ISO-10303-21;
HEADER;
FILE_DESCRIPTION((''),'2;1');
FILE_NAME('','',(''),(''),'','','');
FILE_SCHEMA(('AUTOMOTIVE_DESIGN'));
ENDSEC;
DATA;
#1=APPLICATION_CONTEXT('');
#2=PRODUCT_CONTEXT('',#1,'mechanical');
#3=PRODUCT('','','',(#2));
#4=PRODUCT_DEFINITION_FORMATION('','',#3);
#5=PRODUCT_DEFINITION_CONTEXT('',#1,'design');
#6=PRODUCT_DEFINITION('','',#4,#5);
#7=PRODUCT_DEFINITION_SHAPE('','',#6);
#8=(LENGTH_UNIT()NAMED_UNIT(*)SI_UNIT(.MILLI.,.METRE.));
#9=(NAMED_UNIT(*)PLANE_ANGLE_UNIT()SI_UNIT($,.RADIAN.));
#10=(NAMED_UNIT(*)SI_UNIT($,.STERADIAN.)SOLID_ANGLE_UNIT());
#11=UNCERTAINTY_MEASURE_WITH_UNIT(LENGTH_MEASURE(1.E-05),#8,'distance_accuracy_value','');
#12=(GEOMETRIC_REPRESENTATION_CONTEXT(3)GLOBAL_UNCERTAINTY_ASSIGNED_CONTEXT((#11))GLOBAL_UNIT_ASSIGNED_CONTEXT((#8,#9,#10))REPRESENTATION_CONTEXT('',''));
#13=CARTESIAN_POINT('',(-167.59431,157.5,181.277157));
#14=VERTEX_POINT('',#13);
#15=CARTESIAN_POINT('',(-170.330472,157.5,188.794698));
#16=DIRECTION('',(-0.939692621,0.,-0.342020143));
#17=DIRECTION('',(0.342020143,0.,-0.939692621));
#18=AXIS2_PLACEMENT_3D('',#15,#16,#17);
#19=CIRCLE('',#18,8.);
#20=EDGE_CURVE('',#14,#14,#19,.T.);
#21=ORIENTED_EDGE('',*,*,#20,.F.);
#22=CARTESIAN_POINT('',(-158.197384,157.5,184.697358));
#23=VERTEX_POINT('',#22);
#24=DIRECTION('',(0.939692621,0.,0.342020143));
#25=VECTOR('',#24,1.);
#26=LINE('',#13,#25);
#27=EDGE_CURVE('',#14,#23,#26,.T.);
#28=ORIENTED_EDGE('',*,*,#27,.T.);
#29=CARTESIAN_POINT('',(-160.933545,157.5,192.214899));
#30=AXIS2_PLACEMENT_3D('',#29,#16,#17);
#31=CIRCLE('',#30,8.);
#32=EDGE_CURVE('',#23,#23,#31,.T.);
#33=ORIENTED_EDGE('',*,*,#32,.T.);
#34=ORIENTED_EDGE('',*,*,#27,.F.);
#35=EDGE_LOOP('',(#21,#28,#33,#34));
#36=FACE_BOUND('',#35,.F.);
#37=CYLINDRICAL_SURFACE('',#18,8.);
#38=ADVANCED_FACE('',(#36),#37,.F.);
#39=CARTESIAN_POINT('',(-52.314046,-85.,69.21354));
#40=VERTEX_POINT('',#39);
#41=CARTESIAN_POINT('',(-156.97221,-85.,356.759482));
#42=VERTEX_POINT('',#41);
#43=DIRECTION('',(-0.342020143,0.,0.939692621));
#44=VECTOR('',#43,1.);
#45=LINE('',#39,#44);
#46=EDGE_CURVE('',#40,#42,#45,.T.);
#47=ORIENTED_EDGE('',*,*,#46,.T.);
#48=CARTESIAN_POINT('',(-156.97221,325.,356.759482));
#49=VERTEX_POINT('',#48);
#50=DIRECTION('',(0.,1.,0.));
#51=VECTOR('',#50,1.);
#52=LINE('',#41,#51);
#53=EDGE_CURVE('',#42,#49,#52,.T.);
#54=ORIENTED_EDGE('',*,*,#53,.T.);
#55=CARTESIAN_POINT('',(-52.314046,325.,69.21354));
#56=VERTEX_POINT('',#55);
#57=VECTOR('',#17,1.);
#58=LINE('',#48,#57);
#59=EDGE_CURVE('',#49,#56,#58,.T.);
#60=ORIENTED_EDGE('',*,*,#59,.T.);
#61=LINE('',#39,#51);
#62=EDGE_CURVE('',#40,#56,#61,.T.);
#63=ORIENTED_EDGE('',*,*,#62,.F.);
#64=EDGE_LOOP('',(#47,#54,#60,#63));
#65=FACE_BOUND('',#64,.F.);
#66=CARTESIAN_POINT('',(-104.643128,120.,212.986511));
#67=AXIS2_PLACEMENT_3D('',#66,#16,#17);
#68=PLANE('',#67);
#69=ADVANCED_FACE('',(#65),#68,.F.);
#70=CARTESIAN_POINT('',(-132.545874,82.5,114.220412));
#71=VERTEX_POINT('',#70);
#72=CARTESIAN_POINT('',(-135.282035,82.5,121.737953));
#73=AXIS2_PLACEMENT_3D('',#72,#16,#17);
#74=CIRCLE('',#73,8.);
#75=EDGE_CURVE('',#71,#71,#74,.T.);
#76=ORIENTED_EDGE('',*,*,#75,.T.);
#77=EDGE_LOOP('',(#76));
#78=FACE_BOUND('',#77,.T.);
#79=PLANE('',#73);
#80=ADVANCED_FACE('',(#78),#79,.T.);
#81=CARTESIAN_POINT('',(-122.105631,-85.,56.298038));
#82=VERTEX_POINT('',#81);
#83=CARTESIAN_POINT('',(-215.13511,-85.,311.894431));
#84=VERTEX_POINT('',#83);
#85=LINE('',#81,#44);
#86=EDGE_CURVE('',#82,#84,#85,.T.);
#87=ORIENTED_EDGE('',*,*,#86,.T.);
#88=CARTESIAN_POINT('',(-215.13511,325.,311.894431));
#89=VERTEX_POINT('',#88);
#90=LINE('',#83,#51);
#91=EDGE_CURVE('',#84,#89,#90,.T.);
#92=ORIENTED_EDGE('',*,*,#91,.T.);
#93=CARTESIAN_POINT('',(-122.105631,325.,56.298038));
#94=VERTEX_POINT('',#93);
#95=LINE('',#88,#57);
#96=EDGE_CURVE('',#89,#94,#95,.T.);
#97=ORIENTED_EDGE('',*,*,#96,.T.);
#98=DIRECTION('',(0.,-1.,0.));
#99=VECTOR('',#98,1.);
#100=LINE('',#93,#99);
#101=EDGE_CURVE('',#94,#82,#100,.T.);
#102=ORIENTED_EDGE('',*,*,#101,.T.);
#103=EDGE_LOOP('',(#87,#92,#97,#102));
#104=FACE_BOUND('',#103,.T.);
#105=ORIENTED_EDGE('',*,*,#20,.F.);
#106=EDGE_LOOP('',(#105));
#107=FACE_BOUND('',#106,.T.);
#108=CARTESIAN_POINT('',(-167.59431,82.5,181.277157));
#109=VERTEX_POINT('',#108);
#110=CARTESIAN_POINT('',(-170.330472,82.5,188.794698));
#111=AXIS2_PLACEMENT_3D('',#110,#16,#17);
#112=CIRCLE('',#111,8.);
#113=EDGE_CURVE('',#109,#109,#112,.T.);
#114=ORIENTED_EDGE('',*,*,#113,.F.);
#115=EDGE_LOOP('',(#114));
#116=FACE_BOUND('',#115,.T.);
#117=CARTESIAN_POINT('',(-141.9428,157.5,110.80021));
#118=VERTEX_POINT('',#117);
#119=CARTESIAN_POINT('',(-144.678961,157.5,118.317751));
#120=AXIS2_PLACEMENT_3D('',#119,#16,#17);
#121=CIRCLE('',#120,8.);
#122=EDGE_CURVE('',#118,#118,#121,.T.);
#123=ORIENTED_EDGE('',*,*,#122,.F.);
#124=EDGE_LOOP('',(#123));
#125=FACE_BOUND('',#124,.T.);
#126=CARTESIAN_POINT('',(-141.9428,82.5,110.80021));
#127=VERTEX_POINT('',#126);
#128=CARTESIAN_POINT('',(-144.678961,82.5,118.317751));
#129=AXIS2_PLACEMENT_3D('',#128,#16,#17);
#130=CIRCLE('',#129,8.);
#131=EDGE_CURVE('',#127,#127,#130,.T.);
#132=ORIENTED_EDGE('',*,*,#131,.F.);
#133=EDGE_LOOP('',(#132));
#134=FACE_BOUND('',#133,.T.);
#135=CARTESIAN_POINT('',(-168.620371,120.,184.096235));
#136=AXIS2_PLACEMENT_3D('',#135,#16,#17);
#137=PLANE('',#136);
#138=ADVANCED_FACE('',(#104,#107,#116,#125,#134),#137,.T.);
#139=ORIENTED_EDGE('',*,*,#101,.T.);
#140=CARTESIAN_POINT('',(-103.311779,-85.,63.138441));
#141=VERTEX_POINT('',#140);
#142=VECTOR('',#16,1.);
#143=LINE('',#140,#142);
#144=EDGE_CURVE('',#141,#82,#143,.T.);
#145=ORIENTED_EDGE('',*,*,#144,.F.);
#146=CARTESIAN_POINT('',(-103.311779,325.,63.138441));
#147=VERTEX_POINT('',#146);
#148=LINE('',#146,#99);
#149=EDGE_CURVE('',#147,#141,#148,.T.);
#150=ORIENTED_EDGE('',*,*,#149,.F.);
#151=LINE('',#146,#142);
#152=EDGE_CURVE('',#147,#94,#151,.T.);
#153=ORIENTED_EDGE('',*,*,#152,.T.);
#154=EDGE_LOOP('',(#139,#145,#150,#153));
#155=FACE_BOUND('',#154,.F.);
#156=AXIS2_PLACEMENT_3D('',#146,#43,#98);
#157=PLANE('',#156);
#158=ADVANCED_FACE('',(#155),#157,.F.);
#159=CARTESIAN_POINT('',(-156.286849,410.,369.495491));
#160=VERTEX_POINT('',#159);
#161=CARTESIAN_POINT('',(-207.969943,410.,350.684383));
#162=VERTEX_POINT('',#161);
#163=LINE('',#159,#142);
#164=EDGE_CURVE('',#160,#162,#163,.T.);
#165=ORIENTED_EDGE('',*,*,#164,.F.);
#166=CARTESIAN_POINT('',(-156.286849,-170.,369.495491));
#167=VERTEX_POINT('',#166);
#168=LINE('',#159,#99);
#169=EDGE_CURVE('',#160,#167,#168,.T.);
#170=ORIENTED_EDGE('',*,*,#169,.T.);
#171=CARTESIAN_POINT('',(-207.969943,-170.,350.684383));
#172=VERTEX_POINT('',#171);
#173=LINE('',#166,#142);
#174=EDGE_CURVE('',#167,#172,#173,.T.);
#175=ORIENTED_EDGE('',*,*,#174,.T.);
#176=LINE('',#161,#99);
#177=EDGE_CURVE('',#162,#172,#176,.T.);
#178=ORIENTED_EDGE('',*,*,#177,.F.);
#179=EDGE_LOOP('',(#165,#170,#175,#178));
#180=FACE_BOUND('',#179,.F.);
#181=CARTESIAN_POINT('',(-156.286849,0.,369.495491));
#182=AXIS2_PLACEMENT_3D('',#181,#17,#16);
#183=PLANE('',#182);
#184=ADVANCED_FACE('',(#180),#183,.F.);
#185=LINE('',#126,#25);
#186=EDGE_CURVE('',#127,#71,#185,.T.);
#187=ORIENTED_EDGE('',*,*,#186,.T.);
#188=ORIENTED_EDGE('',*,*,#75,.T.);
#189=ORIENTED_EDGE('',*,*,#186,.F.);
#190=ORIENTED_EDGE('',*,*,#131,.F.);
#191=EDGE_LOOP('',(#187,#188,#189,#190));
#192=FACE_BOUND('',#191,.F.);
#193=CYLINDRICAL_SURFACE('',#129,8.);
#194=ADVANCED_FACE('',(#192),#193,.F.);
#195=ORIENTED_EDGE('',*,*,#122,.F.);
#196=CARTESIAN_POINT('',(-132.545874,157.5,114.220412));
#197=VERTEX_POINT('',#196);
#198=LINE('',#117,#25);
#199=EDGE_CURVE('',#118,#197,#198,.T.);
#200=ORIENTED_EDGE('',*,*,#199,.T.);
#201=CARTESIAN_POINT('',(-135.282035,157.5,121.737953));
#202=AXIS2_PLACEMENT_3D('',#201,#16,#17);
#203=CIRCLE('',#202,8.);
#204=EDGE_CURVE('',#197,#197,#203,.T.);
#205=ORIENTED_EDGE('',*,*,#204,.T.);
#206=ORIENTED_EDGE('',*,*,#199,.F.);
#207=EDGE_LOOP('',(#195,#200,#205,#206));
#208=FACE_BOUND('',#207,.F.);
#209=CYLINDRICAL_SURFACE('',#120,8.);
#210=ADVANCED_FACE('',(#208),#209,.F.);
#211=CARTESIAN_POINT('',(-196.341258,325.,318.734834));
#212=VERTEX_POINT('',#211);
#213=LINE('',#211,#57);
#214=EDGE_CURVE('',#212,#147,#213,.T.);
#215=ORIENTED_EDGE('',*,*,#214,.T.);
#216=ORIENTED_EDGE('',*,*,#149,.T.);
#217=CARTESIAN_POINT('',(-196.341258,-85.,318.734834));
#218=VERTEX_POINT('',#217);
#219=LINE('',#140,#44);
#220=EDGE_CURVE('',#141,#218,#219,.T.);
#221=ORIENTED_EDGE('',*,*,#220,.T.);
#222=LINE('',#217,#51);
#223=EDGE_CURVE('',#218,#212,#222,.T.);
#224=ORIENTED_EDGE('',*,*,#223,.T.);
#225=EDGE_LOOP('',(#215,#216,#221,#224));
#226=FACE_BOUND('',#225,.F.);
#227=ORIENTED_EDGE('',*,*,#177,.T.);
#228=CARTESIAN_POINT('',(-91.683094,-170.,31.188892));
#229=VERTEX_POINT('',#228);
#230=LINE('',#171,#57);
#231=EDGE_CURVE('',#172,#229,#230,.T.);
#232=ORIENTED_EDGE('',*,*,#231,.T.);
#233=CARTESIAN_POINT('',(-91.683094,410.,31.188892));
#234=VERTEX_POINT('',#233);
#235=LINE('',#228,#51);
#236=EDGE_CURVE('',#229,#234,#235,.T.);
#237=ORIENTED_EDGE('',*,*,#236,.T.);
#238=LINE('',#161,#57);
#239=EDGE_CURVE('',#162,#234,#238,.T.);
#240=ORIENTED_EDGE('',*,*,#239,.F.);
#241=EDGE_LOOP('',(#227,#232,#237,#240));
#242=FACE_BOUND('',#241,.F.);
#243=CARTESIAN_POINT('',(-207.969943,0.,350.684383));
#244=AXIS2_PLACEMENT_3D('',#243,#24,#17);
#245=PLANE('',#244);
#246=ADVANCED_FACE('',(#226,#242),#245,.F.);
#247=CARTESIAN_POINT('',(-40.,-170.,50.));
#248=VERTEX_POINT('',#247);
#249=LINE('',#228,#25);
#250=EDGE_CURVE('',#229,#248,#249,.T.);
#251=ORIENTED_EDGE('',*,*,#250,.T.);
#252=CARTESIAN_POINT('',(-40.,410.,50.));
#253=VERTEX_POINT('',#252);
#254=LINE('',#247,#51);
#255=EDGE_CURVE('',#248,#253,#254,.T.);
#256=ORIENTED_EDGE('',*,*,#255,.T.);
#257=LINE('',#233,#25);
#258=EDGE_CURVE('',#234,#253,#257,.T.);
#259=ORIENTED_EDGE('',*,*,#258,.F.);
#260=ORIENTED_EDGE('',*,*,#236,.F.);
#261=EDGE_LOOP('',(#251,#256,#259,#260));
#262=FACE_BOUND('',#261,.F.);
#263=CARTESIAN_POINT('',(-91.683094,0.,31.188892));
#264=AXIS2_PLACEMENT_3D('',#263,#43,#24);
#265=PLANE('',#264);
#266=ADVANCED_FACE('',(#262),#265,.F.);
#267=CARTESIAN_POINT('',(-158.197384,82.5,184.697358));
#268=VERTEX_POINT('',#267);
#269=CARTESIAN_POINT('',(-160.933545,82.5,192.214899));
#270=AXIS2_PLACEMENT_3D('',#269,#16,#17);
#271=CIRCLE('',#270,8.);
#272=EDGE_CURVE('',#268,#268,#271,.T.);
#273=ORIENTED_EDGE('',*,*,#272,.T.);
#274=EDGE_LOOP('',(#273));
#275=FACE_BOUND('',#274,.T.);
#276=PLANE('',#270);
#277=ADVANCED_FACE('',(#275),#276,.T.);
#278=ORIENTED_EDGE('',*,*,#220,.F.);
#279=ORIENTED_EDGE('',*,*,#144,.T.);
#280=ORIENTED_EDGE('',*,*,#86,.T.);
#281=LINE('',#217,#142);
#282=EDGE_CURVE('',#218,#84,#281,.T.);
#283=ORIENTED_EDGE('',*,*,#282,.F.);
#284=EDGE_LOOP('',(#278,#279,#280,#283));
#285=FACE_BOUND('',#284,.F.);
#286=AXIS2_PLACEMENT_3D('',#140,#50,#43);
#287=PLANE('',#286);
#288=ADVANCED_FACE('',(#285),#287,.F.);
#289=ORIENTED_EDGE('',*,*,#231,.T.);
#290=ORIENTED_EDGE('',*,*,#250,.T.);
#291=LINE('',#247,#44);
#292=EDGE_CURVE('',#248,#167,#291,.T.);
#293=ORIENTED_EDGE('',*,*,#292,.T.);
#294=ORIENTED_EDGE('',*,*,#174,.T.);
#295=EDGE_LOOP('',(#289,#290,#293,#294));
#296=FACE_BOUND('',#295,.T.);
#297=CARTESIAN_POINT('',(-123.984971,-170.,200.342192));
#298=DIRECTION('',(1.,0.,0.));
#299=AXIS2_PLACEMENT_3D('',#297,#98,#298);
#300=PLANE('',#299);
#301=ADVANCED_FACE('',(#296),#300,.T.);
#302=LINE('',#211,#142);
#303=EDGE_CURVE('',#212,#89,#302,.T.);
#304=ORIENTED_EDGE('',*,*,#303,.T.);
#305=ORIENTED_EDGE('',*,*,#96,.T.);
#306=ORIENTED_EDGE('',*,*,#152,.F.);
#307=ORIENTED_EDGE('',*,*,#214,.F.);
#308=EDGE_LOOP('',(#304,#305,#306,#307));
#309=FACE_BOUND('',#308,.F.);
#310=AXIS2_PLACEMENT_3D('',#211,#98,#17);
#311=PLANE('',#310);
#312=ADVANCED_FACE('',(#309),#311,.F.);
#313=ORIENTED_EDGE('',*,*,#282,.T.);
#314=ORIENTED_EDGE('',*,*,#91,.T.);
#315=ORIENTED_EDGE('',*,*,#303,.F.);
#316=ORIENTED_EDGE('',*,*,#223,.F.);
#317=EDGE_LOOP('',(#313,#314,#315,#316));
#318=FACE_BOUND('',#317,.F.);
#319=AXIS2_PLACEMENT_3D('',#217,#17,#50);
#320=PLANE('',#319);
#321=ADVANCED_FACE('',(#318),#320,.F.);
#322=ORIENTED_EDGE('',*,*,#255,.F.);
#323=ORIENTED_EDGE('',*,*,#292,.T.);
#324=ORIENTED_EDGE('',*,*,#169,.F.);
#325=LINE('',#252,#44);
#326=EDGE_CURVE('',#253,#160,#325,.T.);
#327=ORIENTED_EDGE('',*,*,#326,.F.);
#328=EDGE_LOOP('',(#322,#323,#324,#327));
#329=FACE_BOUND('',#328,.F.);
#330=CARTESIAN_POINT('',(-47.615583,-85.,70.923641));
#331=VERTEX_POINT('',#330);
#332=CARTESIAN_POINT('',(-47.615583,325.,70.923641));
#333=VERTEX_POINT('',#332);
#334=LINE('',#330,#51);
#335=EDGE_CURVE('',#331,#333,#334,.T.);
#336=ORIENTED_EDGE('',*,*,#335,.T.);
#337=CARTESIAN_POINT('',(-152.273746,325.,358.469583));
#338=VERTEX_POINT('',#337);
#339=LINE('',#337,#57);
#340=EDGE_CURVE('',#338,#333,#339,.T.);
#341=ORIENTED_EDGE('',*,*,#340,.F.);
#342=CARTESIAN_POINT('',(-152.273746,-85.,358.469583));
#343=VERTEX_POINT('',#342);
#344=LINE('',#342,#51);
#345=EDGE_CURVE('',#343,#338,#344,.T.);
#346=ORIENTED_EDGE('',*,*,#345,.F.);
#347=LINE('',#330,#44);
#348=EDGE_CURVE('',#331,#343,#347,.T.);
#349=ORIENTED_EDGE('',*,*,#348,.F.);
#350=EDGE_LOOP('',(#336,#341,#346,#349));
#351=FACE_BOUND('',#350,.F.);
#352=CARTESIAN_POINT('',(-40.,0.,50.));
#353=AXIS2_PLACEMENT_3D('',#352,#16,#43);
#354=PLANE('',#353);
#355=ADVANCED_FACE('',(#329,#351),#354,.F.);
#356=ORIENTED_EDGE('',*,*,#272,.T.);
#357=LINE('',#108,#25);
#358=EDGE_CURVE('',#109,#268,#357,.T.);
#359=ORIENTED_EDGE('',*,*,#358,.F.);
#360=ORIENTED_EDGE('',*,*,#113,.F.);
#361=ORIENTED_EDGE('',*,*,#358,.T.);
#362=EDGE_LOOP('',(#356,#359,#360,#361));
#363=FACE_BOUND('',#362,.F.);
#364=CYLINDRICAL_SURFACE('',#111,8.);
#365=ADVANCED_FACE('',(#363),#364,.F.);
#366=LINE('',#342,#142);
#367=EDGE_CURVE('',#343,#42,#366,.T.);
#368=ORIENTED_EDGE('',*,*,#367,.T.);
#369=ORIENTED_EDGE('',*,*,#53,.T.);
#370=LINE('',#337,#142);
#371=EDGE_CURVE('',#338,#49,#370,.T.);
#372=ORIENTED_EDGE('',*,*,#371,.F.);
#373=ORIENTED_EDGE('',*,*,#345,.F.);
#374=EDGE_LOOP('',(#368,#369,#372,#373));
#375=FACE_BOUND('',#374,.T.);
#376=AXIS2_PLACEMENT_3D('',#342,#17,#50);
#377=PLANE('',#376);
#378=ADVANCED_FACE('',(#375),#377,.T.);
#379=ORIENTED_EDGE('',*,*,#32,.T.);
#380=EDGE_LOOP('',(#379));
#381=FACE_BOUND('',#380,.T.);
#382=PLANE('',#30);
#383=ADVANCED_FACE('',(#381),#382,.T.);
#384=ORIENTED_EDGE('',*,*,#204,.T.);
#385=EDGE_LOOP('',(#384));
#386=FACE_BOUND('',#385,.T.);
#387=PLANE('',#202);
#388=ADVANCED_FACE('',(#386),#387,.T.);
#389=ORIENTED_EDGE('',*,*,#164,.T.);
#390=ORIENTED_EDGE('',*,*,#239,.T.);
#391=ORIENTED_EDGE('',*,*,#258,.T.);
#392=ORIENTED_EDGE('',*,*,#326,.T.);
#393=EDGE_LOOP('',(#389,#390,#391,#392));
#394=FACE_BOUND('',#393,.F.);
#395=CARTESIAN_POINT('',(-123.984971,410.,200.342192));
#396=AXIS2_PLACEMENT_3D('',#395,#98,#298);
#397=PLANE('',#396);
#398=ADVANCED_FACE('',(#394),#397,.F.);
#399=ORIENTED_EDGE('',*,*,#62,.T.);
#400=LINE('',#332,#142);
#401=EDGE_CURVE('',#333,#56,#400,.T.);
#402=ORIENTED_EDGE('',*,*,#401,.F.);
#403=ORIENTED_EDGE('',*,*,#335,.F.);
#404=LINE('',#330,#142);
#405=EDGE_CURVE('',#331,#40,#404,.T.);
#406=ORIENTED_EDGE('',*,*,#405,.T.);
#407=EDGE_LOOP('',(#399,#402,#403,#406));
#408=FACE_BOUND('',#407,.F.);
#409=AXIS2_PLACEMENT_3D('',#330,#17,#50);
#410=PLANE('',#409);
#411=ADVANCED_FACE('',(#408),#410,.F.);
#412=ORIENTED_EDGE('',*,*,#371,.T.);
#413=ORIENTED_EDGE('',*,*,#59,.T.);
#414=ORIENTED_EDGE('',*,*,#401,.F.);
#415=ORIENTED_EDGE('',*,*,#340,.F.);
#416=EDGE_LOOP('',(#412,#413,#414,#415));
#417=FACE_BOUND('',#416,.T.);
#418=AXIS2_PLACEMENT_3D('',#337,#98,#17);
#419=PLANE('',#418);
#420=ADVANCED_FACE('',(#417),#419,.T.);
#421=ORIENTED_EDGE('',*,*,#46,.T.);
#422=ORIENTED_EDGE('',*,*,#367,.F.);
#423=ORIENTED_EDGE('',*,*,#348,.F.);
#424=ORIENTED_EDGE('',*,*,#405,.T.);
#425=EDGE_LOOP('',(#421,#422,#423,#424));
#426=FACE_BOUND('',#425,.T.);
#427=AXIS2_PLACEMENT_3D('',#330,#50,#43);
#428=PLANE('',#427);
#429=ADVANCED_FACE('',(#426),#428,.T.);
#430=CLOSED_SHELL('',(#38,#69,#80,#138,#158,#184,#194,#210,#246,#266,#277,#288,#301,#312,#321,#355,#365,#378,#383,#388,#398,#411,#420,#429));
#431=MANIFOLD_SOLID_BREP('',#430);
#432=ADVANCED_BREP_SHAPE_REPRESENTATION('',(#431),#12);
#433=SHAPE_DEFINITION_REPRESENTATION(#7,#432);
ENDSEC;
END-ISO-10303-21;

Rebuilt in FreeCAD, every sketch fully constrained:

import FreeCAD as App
import Part
import Sketcher

V = App.Vector
Q = App.Units.Quantity

doc = App.newDocument("Part")
params = doc.addObject("Spreadsheet::Sheet", "Params")
for row, (alias, value) in enumerate([
    ("sketch1_length", "340 mm"),
    ("sketch1_length2", "55 mm"),
    ("pad1_length", "410 mm"),
    ("pad1_length2", "170 mm"),
    ("sketch2_width", "306 mm"),
    ("sketch2_height", "410 mm"),
    ("pocket1_length", "5 mm"),
    ("sketch3_width", "272 mm"),
    ("sketch3_height", "410 mm"),
    ("pad2_length", "20 mm"),
    ("sketch4_diameter", "16 mm"),
    ("pocket2_length", "10 mm"),
], start=1):
    params.set(f"A{row}", alias)
    params.set(f"B{row}", "=" + value)
    params.setAlias(f"B{row}", alias)

body = doc.addObject("PartDesign::Body", "Body")

# Sketch on XZ plane
sketch1 = doc.addObject("Sketcher::SketchObject", "Sketch")
body.addObject(sketch1)
sketch1.AttachmentSupport = (doc.XZ_Plane, [""])
sketch1.MapMode = "FlatFace"
sketch1.addGeometry([
    Part.LineSegment(V(-156, 369, 0), V(-40, 50, 0)),
    Part.LineSegment(V(-40, 50, 0), V(-92, 31, 0)),
    Part.LineSegment(V(-92, 31, 0), V(-208, 351, 0)),
    Part.LineSegment(V(-208, 351, 0), V(-156, 369, 0)),
], False)
sketch1.addConstraint([
    Sketcher.Constraint("Coincident", 0, 2, 1, 1),
    Sketcher.Constraint("Coincident", 1, 2, 2, 1),
    Sketcher.Constraint("Coincident", 2, 2, 3, 1),
    Sketcher.Constraint("Coincident", 3, 2, 0, 1),
    Sketcher.Constraint("Perpendicular", 0, 1),
    Sketcher.Constraint("Perpendicular", 1, 2),
    Sketcher.Constraint("Perpendicular", 2, 3),
    Sketcher.Constraint("Angle", 0, Q("-70 deg")),
    Sketcher.Constraint("Distance", 0, 340.0),
    Sketcher.Constraint("Distance", 1, 55.0),
    Sketcher.Constraint("DistanceX", 0, 2, -1, 1, 40.0),
    Sketcher.Constraint("DistanceY", -1, 1, 0, 2, 50.0),
])
sketch1.setExpression("Constraints[8]", "Params.sketch1_length")
sketch1.setExpression("Constraints[9]", "Params.sketch1_length2")
pad1 = doc.addObject("PartDesign::Pad", "Pad")
body.addObject(pad1)
pad1.Profile = sketch1
pad1.Type = "TwoLengths"
pad1.setExpression("Length", "Params.pad1_length")
pad1.setExpression("Length2", "Params.pad1_length2")
pad1.Reversed = True

# Sketch on an angled plane
sketch2 = doc.addObject("Sketcher::SketchObject", "Sketch001")
body.addObject(sketch2)
sketch2.Placement = App.Placement(V(-19.251199, 0, -7.006863), App.Rotation(V(-0.342020143, 0, 0.939692621), V(0, -1, 0), V(0.939692621, 0, 0.342020143), "ZXY"))
sketch2.addGeometry([
    Part.LineSegment(V(389, 85, 0), V(83, 85, 0)),
    Part.LineSegment(V(83, 85, 0), V(83, -325, 0)),
    Part.LineSegment(V(83, -325, 0), V(389, -325, 0)),
    Part.LineSegment(V(389, -325, 0), V(389, 85, 0)),
], False)
sketch2.addConstraint([
    Sketcher.Constraint("Coincident", 0, 2, 1, 1),
    Sketcher.Constraint("Coincident", 1, 2, 2, 1),
    Sketcher.Constraint("Coincident", 2, 2, 3, 1),
    Sketcher.Constraint("Coincident", 3, 2, 0, 1),
    Sketcher.Constraint("Horizontal", 0),
    Sketcher.Constraint("Vertical", 1),
    Sketcher.Constraint("Horizontal", 2),
    Sketcher.Constraint("Vertical", 3),
    Sketcher.Constraint("DistanceX", 0, 2, 0, 1, 306.0),
    Sketcher.Constraint("DistanceY", 1, 2, 1, 1, 410.0),
    Sketcher.Constraint("DistanceY", -1, 1, 0, 2, 85.0),
    Sketcher.Constraint("DistanceX", -1, 1, 0, 2, 82.931911),
])
sketch2.setExpression("Constraints[8]", "Params.sketch2_width")
sketch2.setExpression("Constraints[9]", "Params.sketch2_height")
pocket1 = doc.addObject("PartDesign::Pocket", "Pocket")
body.addObject(pocket1)
pocket1.Profile = sketch2
pocket1.setExpression("Length", "Params.pocket1_length")

# Sketch on an angled plane
sketch3 = doc.addObject("Sketcher::SketchObject", "Sketch002")
body.addObject(sketch3)
sketch3.Placement = App.Placement(V(-70.934293, 0, -25.817971), App.Rotation(V(0.342020143, 0, -0.939692621), V(0, -1, 0), V(-0.939692621, 0, -0.342020143), "ZXY"))
sketch3.addGeometry([
    Part.LineSegment(V(-367, -325, 0), V(-95, -325, 0)),
    Part.LineSegment(V(-95, -325, 0), V(-95, 85, 0)),
    Part.LineSegment(V(-95, 85, 0), V(-367, 85, 0)),
    Part.LineSegment(V(-367, 85, 0), V(-367, -325, 0)),
], False)
sketch3.addConstraint([
    Sketcher.Constraint("Coincident", 0, 2, 1, 1),
    Sketcher.Constraint("Coincident", 1, 2, 2, 1),
    Sketcher.Constraint("Coincident", 2, 2, 3, 1),
    Sketcher.Constraint("Coincident", 3, 2, 0, 1),
    Sketcher.Constraint("Horizontal", 0),
    Sketcher.Constraint("Vertical", 1),
    Sketcher.Constraint("Horizontal", 2),
    Sketcher.Constraint("Vertical", 3),
    Sketcher.Constraint("DistanceX", 0, 1, 0, 2, 272.0),
    Sketcher.Constraint("DistanceY", 1, 1, 1, 2, 410.0),
    Sketcher.Constraint("DistanceY", 0, 2, -1, 1, 325.0),
    Sketcher.Constraint("DistanceX", 0, 2, -1, 1, 94.665437),
])
sketch3.setExpression("Constraints[8]", "Params.sketch3_width")
sketch3.setExpression("Constraints[9]", "Params.sketch3_height")
pad2 = doc.addObject("PartDesign::Pad", "Pad001")
body.addObject(pad2)
pad2.Profile = sketch3
pad2.setExpression("Length", "Params.pad2_length")

# Sketch on an angled plane
sketch4 = doc.addObject("Sketcher::SketchObject", "Sketch003")
body.addObject(sketch4)
sketch4.Placement = App.Placement(V(-89.728145, 0, -32.658374), App.Rotation(V(0.342020143, 0, -0.939692621), V(0, -1, 0), V(-0.939692621, 0, -0.342020143), "ZXY"))
sketch4.addGeometry([
    Part.Circle(V(-236, -83, 0), V(0, 0, 1), 8),
    Part.Circle(V(-161, -83, 0), V(0, 0, 1), 8),
    Part.Circle(V(-161, -158, 0), V(0, 0, 1), 8),
    Part.Circle(V(-236, -158, 0), V(0, 0, 1), 8),
], False)
sketch4.addConstraint([
    Sketcher.Constraint("Equal", 0, 1),
    Sketcher.Constraint("Equal", 1, 2),
    Sketcher.Constraint("Equal", 2, 3),
    Sketcher.Constraint("Horizontal", 0, 3, 1, 3),
    Sketcher.Constraint("Horizontal", 2, 3, 3, 3),
    Sketcher.Constraint("Vertical", 1, 3, 2, 3),
    Sketcher.Constraint("Vertical", 0, 3, 3, 3),
    Sketcher.Constraint("Diameter", 0, 16.0),
    Sketcher.Constraint("DistanceX", 0, 3, 1, 3, 75.0),
    Sketcher.Constraint("DistanceY", 2, 3, 1, 3, 75.0),
    Sketcher.Constraint("DistanceY", 0, 3, -1, 1, 82.5),
    Sketcher.Constraint("DistanceX", 0, 3, -1, 1, 235.665437),
])
sketch4.setExpression("Constraints[7]", "Params.sketch4_diameter")
pocket2 = doc.addObject("PartDesign::Pocket", "Pocket001")
body.addObject(pocket2)
pocket2.Profile = sketch4
pocket2.setExpression("Length", "Params.pocket2_length")

doc.recompute()
